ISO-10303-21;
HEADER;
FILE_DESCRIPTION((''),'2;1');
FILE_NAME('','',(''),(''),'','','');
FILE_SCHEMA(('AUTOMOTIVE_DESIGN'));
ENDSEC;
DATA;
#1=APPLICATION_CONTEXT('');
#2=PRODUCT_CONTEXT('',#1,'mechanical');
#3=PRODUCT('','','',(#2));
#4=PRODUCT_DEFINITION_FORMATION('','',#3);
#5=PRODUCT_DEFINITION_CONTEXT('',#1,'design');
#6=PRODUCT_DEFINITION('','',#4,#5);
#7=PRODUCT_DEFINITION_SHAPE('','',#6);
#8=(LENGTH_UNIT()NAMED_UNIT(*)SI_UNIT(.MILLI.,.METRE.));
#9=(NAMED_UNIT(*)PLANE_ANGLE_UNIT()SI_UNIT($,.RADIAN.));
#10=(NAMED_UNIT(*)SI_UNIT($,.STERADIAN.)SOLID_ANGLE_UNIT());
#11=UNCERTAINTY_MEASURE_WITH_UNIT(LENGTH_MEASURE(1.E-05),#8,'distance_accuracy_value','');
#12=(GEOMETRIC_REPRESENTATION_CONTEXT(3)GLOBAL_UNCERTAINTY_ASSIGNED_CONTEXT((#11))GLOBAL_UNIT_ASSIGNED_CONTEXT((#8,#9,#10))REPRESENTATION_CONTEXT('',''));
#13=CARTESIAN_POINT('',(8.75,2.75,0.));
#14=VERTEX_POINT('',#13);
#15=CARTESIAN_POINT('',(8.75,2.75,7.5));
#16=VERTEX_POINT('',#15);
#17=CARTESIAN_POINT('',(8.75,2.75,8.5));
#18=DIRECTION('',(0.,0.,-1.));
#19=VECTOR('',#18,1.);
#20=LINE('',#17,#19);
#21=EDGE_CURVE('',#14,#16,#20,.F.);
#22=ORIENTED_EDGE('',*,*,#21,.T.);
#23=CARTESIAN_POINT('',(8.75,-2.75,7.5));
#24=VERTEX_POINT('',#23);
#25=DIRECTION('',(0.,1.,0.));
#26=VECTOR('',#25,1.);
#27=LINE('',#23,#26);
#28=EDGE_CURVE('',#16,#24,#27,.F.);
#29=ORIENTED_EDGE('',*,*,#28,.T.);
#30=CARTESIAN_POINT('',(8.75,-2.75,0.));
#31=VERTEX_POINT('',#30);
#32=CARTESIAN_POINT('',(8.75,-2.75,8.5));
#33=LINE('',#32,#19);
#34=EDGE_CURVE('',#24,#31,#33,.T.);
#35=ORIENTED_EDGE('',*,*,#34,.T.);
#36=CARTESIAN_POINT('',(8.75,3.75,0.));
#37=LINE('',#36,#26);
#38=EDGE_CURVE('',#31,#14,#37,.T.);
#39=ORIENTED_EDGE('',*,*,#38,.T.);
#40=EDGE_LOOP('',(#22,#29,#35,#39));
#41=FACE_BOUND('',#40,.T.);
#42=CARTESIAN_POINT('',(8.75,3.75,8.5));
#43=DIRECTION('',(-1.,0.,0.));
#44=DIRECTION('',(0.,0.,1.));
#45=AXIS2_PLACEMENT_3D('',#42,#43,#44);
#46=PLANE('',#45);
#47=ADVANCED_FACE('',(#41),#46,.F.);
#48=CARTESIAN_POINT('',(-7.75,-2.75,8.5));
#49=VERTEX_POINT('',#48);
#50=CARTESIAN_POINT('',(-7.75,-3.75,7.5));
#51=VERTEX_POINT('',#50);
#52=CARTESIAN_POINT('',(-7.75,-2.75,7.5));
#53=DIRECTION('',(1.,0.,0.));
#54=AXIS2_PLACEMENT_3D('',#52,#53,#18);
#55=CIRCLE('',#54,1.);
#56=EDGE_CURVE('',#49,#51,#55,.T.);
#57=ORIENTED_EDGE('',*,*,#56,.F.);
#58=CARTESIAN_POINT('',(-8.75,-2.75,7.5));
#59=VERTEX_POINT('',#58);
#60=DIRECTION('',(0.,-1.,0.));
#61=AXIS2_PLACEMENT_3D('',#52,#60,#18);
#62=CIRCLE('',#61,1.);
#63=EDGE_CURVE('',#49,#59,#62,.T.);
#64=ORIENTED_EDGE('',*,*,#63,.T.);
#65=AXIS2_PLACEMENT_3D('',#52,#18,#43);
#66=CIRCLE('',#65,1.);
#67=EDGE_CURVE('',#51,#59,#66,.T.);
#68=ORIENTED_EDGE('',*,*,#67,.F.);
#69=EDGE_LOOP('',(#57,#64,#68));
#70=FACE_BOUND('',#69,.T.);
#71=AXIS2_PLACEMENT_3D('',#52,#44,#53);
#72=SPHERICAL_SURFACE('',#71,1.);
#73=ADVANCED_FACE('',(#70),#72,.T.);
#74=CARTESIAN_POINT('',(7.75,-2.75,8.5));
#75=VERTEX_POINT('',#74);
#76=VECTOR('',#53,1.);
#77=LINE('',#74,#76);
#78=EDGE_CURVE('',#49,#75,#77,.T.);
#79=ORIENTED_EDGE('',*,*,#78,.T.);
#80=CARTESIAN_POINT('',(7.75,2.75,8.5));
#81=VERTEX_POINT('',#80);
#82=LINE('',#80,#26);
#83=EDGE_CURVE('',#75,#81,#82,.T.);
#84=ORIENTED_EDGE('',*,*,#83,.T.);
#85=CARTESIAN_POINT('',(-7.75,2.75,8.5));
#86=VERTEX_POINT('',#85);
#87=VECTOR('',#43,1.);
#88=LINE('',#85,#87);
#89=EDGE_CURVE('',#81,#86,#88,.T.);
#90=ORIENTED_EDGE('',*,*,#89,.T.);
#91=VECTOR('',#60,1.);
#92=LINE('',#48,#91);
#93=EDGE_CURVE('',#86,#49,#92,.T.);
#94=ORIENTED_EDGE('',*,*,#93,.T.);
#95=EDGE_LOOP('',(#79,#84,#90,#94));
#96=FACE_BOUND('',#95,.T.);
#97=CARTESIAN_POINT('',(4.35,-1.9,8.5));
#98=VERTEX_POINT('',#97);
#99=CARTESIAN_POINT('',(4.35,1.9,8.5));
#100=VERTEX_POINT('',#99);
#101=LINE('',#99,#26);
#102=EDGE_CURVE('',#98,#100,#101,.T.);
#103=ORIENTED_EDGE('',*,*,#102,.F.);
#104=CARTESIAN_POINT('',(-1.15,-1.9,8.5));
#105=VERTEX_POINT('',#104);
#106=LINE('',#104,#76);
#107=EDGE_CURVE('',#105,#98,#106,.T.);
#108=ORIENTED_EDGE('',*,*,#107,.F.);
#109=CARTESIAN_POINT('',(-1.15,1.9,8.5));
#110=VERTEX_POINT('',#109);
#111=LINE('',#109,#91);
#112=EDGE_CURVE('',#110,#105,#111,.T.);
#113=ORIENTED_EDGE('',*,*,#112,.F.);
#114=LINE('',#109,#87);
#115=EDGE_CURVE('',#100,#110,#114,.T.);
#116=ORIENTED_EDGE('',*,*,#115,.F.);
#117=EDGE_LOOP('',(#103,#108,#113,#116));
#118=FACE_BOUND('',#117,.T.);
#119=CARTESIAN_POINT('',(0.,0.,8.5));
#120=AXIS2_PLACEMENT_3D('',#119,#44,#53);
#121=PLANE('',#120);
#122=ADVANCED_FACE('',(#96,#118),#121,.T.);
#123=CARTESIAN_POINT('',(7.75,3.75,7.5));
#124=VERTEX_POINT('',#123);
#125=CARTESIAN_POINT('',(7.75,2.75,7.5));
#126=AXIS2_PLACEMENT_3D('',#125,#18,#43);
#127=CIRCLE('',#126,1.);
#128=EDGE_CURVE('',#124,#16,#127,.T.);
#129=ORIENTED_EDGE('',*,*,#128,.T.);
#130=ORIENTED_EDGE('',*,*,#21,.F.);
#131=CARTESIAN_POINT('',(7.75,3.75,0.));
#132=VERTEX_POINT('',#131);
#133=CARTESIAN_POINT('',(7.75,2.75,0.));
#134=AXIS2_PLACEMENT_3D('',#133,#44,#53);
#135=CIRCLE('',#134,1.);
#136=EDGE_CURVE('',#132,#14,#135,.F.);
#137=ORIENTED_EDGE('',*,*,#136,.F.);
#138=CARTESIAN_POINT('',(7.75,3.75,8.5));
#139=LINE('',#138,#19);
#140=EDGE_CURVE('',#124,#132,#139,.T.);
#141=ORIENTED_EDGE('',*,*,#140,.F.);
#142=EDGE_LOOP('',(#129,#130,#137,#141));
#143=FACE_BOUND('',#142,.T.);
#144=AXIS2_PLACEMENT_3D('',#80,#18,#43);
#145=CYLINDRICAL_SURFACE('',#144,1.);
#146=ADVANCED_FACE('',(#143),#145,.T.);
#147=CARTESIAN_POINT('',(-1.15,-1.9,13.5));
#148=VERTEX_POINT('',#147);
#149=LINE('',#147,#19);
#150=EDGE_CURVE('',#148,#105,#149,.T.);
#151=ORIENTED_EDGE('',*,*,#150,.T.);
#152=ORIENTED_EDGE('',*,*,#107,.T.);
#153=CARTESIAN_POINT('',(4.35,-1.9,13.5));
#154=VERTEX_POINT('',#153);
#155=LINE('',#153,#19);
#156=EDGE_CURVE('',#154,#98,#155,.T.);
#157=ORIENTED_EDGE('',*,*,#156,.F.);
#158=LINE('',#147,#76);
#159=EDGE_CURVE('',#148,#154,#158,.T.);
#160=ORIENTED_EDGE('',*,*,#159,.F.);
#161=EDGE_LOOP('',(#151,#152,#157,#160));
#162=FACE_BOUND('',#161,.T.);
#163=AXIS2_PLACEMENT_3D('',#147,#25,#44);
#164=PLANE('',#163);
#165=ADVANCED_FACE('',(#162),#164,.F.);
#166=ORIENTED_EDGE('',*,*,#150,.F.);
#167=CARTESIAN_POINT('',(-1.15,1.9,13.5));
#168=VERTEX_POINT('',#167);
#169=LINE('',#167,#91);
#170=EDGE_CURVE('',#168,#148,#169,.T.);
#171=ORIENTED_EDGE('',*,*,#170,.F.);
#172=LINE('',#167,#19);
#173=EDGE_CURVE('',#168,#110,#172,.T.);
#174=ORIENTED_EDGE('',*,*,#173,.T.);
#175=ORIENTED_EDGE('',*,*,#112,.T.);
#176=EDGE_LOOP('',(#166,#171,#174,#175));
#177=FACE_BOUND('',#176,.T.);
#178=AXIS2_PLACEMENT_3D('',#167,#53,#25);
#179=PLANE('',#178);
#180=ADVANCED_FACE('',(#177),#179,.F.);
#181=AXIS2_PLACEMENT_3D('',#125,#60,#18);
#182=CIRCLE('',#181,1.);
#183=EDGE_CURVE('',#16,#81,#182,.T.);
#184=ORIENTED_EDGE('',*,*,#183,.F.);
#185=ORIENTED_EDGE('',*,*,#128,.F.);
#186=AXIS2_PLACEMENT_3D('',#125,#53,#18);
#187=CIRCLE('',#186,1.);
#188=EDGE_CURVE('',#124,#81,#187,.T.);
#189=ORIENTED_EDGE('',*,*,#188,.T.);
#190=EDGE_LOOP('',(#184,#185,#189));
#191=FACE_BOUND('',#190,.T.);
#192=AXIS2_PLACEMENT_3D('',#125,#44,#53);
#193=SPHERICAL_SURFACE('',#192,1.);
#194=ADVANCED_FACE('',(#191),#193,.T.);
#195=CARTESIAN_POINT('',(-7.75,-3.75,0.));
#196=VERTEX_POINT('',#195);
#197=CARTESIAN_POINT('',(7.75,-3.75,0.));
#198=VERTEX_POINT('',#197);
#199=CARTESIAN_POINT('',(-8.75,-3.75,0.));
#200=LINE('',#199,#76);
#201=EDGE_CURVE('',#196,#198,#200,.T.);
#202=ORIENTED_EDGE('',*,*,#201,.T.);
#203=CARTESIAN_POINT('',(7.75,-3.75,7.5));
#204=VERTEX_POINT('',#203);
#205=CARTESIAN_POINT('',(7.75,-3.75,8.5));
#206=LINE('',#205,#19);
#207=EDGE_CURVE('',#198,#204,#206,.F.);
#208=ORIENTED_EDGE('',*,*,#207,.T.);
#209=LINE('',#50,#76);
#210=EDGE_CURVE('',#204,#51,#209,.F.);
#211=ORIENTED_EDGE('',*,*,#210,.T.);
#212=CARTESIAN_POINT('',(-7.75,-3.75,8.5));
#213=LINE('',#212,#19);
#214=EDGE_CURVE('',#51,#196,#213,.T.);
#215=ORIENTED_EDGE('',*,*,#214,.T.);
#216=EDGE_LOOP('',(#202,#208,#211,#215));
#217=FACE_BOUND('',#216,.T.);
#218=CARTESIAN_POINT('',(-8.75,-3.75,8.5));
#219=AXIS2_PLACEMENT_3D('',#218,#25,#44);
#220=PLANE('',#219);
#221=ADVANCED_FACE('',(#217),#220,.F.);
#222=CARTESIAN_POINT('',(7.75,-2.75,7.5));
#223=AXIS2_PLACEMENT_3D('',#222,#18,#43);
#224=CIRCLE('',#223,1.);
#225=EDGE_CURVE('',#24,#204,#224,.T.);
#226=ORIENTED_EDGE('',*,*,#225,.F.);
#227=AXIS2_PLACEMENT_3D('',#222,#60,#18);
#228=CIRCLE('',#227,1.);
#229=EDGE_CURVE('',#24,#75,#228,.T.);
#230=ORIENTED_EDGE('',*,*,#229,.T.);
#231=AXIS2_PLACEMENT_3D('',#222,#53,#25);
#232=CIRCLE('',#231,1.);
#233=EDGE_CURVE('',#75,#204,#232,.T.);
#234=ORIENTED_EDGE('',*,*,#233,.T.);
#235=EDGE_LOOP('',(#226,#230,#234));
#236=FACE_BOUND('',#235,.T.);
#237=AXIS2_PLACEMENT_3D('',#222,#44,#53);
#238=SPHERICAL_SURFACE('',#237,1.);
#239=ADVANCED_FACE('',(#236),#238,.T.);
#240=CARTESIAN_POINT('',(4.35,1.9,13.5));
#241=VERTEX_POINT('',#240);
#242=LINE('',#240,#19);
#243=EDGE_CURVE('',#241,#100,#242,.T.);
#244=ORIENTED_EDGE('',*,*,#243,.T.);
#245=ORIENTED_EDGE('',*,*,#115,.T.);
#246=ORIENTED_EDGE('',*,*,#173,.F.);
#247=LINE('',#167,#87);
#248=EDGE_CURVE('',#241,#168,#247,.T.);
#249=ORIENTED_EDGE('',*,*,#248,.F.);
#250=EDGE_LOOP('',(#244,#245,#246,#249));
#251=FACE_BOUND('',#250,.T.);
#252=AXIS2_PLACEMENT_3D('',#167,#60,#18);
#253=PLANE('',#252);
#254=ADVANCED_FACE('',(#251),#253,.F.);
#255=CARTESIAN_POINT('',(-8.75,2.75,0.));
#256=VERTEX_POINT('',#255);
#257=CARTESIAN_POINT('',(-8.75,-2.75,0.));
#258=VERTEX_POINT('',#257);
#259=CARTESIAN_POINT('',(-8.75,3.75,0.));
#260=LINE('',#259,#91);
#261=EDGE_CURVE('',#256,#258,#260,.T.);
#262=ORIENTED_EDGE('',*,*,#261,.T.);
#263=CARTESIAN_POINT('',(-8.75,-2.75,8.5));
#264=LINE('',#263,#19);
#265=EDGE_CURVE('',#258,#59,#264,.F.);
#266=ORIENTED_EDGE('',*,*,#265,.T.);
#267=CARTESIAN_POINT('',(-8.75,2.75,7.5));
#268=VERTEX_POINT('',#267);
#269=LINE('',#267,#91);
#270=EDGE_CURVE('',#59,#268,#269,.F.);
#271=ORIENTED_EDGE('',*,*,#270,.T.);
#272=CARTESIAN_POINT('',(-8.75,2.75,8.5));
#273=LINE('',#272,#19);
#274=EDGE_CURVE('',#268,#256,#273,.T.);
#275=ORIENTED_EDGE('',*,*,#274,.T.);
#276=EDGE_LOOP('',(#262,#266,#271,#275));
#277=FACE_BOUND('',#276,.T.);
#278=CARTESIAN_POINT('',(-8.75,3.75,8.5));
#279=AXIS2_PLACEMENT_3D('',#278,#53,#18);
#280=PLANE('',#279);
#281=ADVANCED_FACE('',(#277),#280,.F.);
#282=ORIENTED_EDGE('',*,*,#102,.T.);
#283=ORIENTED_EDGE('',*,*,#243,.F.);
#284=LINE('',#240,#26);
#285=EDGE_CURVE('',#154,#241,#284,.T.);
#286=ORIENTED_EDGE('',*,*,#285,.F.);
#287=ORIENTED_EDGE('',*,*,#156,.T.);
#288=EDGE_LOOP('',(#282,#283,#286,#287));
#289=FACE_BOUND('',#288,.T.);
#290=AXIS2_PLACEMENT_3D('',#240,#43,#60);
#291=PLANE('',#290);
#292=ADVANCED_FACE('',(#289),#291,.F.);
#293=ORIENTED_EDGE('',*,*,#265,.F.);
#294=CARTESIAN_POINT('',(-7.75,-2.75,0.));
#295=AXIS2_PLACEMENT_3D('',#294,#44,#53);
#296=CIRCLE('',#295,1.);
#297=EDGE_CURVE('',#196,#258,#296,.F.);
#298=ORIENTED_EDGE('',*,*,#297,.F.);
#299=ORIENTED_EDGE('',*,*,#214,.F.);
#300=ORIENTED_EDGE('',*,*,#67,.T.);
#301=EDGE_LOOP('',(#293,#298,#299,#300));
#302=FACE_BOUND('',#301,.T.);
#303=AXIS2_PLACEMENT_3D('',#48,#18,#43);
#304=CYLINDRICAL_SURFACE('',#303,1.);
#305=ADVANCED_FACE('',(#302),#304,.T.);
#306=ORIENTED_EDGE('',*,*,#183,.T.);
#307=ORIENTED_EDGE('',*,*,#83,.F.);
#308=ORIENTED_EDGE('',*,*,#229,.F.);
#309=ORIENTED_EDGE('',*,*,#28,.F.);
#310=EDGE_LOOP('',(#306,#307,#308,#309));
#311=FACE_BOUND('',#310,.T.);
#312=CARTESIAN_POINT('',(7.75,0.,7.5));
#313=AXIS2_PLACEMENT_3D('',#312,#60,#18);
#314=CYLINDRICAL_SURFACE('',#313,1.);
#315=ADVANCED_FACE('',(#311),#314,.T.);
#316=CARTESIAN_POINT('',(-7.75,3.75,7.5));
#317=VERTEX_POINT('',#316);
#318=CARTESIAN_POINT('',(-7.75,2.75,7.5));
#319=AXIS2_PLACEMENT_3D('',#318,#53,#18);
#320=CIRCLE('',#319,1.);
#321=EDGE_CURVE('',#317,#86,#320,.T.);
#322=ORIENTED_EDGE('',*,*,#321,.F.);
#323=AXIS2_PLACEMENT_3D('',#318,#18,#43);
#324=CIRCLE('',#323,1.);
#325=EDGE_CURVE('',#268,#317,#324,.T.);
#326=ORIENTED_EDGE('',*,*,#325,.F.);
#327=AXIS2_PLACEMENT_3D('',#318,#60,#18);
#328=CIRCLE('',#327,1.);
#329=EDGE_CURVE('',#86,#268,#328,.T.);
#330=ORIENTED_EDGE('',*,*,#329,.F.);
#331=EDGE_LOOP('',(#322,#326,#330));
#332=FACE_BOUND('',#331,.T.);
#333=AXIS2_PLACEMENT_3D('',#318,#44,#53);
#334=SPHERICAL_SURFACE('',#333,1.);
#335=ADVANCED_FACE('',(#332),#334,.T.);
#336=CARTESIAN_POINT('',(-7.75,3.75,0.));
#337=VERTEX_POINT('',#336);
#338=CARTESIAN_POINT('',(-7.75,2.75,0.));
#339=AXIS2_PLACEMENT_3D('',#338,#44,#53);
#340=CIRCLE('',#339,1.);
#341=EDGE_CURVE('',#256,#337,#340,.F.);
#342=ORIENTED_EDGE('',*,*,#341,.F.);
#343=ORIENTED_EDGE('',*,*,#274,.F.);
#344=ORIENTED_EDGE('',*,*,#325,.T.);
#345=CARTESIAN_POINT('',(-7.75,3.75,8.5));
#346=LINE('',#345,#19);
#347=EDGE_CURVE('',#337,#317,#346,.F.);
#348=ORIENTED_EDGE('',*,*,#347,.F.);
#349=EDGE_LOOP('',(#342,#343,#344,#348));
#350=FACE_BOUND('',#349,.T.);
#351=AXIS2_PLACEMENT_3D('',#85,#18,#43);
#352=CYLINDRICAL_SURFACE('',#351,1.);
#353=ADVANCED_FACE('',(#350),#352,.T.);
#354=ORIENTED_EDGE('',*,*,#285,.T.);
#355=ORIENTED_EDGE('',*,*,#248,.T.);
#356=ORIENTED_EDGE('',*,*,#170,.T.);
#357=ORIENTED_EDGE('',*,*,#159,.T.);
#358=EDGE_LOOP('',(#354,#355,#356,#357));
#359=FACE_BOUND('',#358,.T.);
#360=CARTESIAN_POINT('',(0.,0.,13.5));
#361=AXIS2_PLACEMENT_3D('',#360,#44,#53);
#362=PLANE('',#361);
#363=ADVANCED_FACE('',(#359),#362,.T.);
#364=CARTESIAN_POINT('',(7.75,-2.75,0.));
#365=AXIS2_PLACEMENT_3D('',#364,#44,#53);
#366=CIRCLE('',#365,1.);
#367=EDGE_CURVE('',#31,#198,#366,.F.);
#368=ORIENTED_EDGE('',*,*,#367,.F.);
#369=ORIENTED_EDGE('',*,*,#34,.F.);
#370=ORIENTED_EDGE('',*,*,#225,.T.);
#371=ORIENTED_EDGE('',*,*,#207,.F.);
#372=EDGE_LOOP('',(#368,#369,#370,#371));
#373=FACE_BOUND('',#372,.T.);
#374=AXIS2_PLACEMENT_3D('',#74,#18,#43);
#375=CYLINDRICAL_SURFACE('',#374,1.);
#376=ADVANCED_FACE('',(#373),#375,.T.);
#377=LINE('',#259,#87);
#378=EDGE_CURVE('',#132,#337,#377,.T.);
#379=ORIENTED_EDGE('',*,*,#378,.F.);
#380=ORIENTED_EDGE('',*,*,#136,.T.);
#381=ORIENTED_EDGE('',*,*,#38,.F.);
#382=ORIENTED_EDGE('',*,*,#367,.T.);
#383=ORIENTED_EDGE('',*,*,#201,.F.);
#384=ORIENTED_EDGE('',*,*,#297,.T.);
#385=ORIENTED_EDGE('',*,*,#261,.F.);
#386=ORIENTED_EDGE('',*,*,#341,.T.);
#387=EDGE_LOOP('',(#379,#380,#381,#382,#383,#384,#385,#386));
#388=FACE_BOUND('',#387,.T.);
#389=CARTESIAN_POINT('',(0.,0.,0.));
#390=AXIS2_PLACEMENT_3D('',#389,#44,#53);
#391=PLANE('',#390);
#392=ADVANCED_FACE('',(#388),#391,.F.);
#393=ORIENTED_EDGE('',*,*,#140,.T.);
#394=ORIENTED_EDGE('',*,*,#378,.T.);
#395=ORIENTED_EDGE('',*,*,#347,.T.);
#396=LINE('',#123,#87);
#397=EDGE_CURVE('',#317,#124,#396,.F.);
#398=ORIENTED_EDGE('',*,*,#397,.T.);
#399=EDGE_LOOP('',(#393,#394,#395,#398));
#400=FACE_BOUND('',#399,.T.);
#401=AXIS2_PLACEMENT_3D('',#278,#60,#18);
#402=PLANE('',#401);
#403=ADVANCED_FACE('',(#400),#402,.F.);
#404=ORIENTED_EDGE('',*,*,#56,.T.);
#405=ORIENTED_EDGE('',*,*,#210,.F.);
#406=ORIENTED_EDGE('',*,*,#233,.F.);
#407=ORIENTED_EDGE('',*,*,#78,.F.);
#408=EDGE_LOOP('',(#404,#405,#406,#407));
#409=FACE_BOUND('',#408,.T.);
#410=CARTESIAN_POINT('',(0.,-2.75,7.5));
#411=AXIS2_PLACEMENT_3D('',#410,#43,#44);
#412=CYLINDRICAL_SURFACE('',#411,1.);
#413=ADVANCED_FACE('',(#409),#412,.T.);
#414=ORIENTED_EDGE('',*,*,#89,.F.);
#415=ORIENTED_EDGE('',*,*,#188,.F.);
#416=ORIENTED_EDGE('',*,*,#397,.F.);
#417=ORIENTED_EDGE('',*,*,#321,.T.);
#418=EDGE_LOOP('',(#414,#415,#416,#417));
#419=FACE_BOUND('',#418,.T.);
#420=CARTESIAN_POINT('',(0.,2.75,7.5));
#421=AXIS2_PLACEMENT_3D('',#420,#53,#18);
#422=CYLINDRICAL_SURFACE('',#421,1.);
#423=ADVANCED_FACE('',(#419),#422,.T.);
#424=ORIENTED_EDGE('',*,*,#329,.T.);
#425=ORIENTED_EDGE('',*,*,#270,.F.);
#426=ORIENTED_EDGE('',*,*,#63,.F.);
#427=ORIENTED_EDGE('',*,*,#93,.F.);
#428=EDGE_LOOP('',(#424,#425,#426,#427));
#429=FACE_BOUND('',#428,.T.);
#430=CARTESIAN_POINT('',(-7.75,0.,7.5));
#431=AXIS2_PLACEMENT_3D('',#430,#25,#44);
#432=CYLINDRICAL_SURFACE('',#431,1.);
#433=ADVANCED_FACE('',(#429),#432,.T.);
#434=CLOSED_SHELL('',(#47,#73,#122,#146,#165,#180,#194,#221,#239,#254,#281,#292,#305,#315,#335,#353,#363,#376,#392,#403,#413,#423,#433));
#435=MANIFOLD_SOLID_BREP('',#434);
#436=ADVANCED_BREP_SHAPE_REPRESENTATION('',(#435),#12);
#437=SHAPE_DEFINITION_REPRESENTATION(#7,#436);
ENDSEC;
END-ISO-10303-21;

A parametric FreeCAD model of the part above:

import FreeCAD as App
import Part
import Sketcher


def edges_at(feature, points):
    """Names of the edges that pass closest to the given points."""
    edges = feature.Shape.Edges
    near = lambda p: min(range(len(edges)), key=lambda i: edges[i].distToShape(Part.Vertex(*p))[0])
    return sorted({f"Edge{near(p) + 1}" for p in points})


def add_polygon(sketch, points):
    """Adds a closed chain of lines whose ends are joined by coincident constraints."""
    first, n = sketch.GeometryCount, len(points)
    for a, b in zip(points, points[1:] + points[:1]):
        sketch.addGeometry(Part.LineSegment(App.Vector(*a, 0), App.Vector(*b, 0)), False)
    for i in range(n):
        sketch.addConstraint(Sketcher.Constraint("Coincident", first + i, 2, first + (i + 1) % n, 1))

doc = App.newDocument("Part")
body = doc.addObject("PartDesign::Body", "Body")

# Sketch on XY plane
sketch1 = body.newObject("Sketcher::SketchObject", "Sketch")
sketch1.AttachmentSupport = (doc.getObject("XY_Plane"), [""])
sketch1.MapMode = "FlatFace"
add_polygon(sketch1, [(-9, 4), (-9, -4), (9, -4), (9, 4)])  # lines 0-3
sketch1.addConstraint([
    Sketcher.Constraint("Vertical", 0),
    Sketcher.Constraint("Horizontal", 1),
    Sketcher.Constraint("Vertical", 2),
    Sketcher.Constraint("Horizontal", 3),
    Sketcher.Constraint("Symmetric", 0, 2, 2, 2, -1, 1),
    Sketcher.Constraint("DistanceX", 1, 1, 1, 2, 17.5),
    Sketcher.Constraint("DistanceY", 0, 2, 0, 1, 7.5),
])
pad1 = body.newObject("PartDesign::Pad", "Pad")
pad1.Profile = sketch1
pad1.Length = 8.5

# Sketch on XY plane
sketch2 = body.newObject("Sketcher::SketchObject", "Sketch001")
sketch2.AttachmentSupport = (doc.getObject("XY_Plane"), [""])
sketch2.MapMode = "FlatFace"
sketch2.AttachmentOffset = App.Placement(App.Vector(0, 0, 8.5), App.Rotation())
add_polygon(sketch2, [(-1.1, 1.9), (-1.1, -1.9), (4.3, -1.9), (4.3, 1.9)])  # lines 0-3
sketch2.addConstraint([
    Sketcher.Constraint("Vertical", 0),
    Sketcher.Constraint("Horizontal", 1),
    Sketcher.Constraint("Vertical", 2),
    Sketcher.Constraint("Horizontal", 3),
    Sketcher.Constraint("DistanceX", 1, 1, 1, 2, 5.5),
    Sketcher.Constraint("DistanceY", 0, 2, 0, 1, 3.8),
    Sketcher.Constraint("DistanceY", 0, 2, -1, 1, 1.9),
    Sketcher.Constraint("DistanceX", 0, 2, -1, 1, 1.15),
])
pad2 = body.newObject("PartDesign::Pad", "Pad001")
pad2.Profile = sketch2
pad2.Length = 5
doc.recompute()

fillet = body.newObject("PartDesign::Fillet", "Fillet")
fillet.Base = (pad2, edges_at(pad2, [
    (8.75, -3.75, 4.25),
    (-8.75, -3.75, 4.25),
    (-8.75, 3.75, 4.25),
    (8.75, 3.75, 4.25),
]))
fillet.Radius = 1
doc.recompute()

fillet2 = body.newObject("PartDesign::Fillet", "Fillet001")
fillet2.Base = (fillet, edges_at(fillet, [
    (8.75, 0, 8.5),
    (0, -3.75, 8.5),
    (0, 3.75, 8.5),
    (-8.75, 0, 8.5),
    (-8.457, 3.457, 8.5),
    (-8.457, -3.457, 8.5),
    (8.457, 3.457, 8.5),
    (8.457, -3.457, 8.5),
]))
fillet2.Radius = 1

doc.recompute()
